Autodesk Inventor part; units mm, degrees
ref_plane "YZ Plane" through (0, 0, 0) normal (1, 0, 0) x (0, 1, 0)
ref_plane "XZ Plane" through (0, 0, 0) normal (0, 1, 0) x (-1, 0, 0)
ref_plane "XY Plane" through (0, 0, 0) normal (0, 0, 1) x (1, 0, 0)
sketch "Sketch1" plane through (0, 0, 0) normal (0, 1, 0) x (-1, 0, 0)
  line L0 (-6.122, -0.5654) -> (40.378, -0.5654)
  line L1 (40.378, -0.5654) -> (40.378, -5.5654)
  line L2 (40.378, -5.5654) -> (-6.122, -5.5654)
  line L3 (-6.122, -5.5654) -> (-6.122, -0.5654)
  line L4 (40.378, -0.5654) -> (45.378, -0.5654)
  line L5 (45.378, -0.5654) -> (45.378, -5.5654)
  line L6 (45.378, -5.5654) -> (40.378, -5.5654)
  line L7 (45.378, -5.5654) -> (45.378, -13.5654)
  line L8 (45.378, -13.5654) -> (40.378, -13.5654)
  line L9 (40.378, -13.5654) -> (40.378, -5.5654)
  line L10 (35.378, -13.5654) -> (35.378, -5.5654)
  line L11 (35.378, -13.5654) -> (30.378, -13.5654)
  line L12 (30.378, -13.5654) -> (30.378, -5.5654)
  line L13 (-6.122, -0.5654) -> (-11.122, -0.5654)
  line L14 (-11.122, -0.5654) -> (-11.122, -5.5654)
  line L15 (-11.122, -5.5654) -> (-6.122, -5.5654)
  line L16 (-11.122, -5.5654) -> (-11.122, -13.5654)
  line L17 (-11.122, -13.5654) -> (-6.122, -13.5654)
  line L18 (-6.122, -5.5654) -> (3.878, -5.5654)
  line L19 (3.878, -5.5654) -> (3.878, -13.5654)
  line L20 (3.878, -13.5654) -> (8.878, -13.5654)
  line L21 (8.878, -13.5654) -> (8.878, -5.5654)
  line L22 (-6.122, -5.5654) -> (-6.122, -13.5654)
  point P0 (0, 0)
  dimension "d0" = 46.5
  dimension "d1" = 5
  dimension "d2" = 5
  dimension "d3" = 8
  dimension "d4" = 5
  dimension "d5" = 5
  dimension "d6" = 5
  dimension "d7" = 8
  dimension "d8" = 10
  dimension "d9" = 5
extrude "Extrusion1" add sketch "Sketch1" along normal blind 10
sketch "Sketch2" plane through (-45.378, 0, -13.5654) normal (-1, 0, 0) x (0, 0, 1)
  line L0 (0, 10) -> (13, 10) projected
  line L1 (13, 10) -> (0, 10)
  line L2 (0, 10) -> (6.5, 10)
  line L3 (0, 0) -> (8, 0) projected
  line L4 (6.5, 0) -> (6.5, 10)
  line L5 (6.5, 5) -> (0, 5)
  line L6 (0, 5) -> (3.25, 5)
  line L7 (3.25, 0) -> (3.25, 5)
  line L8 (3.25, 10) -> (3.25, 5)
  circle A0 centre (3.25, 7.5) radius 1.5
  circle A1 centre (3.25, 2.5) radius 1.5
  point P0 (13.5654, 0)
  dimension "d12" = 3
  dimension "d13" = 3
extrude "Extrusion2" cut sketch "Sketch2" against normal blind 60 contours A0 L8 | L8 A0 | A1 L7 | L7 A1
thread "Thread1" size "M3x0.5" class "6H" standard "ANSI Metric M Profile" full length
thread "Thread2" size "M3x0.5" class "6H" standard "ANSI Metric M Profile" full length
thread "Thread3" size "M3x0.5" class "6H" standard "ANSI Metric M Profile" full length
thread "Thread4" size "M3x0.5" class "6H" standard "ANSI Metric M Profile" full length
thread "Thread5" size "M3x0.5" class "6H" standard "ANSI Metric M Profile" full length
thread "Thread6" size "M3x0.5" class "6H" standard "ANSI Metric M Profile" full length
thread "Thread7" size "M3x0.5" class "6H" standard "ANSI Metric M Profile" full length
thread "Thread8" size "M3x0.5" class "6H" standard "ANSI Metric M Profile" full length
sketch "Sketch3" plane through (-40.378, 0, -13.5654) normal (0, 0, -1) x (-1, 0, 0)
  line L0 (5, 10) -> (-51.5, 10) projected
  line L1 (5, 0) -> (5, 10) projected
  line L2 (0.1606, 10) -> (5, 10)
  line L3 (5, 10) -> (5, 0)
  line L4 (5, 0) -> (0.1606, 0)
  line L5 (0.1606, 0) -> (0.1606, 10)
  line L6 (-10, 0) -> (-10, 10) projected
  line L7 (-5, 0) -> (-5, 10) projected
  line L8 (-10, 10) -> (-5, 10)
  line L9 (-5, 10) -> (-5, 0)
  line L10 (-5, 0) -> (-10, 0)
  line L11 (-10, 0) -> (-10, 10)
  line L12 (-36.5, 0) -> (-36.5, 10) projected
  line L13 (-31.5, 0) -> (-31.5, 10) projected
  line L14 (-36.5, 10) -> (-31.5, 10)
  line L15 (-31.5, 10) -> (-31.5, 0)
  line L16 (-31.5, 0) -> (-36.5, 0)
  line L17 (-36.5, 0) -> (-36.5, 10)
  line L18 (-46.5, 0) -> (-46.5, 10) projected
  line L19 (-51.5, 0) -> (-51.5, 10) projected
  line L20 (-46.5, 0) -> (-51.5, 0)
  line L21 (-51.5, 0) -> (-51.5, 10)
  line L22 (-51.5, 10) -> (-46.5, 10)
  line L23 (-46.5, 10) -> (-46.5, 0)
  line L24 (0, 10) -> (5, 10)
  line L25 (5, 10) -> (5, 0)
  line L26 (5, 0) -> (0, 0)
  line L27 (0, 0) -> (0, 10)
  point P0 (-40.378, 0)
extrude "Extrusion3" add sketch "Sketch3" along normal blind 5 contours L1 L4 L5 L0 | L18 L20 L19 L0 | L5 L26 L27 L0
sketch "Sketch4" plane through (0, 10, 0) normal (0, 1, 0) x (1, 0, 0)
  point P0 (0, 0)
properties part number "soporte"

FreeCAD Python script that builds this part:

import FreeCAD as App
import Part
import Sketcher

V = App.Vector

doc = App.newDocument("Part")
body = doc.addObject("PartDesign::Body", "Body")

sketch1 = body.newObject("Sketcher::SketchObject", "Sketch")
sketch1.AttachmentSupport = (doc.getObject("XZ_Plane"), [""])
sketch1.MapMode = "FlatFace"
sketch1.addGeometry([
    Part.LineSegment(V(11, -1, 0), V(11, -14, 0)),
    Part.LineSegment(V(11, -14, 0), V(6, -14, 0)),
    Part.LineSegment(V(6, -14, 0), V(6, -6, 0)),
    Part.LineSegment(V(6, -6, 0), V(-4, -6, 0)),
    Part.LineSegment(V(-4, -6, 0), V(-4, -14, 0)),
    Part.LineSegment(V(-4, -14, 0), V(-9, -14, 0)),
    Part.LineSegment(V(-9, -14, 0), V(-9, -6, 0)),
    Part.LineSegment(V(-9, -6, 0), V(-30, -6, 0)),
    Part.LineSegment(V(-30, -6, 0), V(-30, -14, 0)),
    Part.LineSegment(V(-30, -14, 0), V(-35, -14, 0)),
    Part.LineSegment(V(-35, -14, 0), V(-35, -6, 0)),
    Part.LineSegment(V(-35, -6, 0), V(-40, -6, 0)),
    Part.LineSegment(V(-40, -6, 0), V(-40, -14, 0)),
    Part.LineSegment(V(-40, -14, 0), V(-45, -14, 0)),
    Part.LineSegment(V(-45, -14, 0), V(-45, -1, 0)),
    Part.LineSegment(V(-45, -1, 0), V(11, -1, 0)),
], False)
sketch1.addConstraint([
    Sketcher.Constraint("Coincident", 0, 2, 1, 1),
    Sketcher.Constraint("Coincident", 1, 2, 2, 1),
    Sketcher.Constraint("Coincident", 2, 2, 3, 1),
    Sketcher.Constraint("Coincident", 3, 2, 4, 1),
    Sketcher.Constraint("Coincident", 4, 2, 5, 1),
    Sketcher.Constraint("Coincident", 5, 2, 6, 1),
    Sketcher.Constraint("Coincident", 6, 2, 7, 1),
    Sketcher.Constraint("Coincident", 7, 2, 8, 1),
    Sketcher.Constraint("Coincident", 8, 2, 9, 1),
    Sketcher.Constraint("Coincident", 9, 2, 10, 1),
    Sketcher.Constraint("Coincident", 10, 2, 11, 1),
    Sketcher.Constraint("Coincident", 11, 2, 12, 1),
    Sketcher.Constraint("Coincident", 12, 2, 13, 1),
    Sketcher.Constraint("Coincident", 13, 2, 14, 1),
    Sketcher.Constraint("Coincident", 14, 2, 15, 1),
    Sketcher.Constraint("Coincident", 15, 2, 0, 1),
    Sketcher.Constraint("Vertical", 0),
    Sketcher.Constraint("Horizontal", 1),
    Sketcher.Constraint("Vertical", 2),
    Sketcher.Constraint("Horizontal", 3),
    Sketcher.Constraint("Vertical", 4),
    Sketcher.Constraint("Horizontal", 5),
    Sketcher.Constraint("Vertical", 6),
    Sketcher.Constraint("Horizontal", 7),
    Sketcher.Constraint("Vertical", 8),
    Sketcher.Constraint("Horizontal", 9),
    Sketcher.Constraint("Vertical", 10),
    Sketcher.Constraint("Horizontal", 11),
    Sketcher.Constraint("Vertical", 12),
    Sketcher.Constraint("Horizontal", 13),
    Sketcher.Constraint("Vertical", 14),
    Sketcher.Constraint("Horizontal", 15),
    Sketcher.Constraint("Horizontal", 1, 2, 4, 2),
    Sketcher.Constraint("Horizontal", 3, 2, 6, 2),
    Sketcher.Constraint("Horizontal", 5, 2, 8, 2),
    Sketcher.Constraint("Horizontal", 7, 2, 10, 2),
    Sketcher.Constraint("Horizontal", 9, 2, 12, 2),
    Sketcher.Constraint("Equal", 1, 5),
    Sketcher.Constraint("Equal", 5, 9),
    Sketcher.Constraint("Equal", 9, 11),
    Sketcher.Constraint("Equal", 11, 13),
    Sketcher.Constraint("DistanceX", 1, 2, 1, 1, 5.0),
    Sketcher.Constraint("DistanceX", 3, 2, 3, 1, 10.0),
    Sketcher.Constraint("DistanceY", 2, 1, 2, 2, 8.0),
    Sketcher.Constraint("DistanceY", 11, 2, 14, 2, 5.0),
    Sketcher.Constraint("DistanceX", 7, 2, 7, 1, 21.5),
    Sketcher.Constraint("DistanceX", -1, 1, 0, 2, 11.122),
    Sketcher.Constraint("DistanceY", 0, 2, -1, 1, 13.5654),
])
pad1 = body.newObject("PartDesign::Pad", "Pad")
pad1.Profile = sketch1
pad1.Length = 10
pad1.Reversed = True

sketch2 = body.newObject("Sketcher::SketchObject", "Sketch001")
sketch2.AttachmentSupport = (doc.getObject("YZ_Plane"), [""])
sketch2.MapMode = "FlatFace"
sketch2.AttachmentOffset = App.Placement(V(0, 0, -45.378), App.Rotation())
sketch2.addGeometry([
    Part.Circle(V(7.5, -10.3, 0), V(0, 0, 1), 1.5),
    Part.Circle(V(2.5, -10.3, 0), V(0, 0, 1), 1.5),
], False)
sketch2.addConstraint([
    Sketcher.Constraint("Equal", 0, 1),
    Sketcher.Constraint("Horizontal", 0, 3, 1, 3),
    Sketcher.Constraint("Diameter", 0, 3.0),
    Sketcher.Constraint("DistanceX", 1, 3, 0, 3, 5.0),
    Sketcher.Constraint("DistanceX", -1, 1, 0, 3, 7.5),
    Sketcher.Constraint("DistanceY", 0, 3, -1, 1, 10.3154),
])
pocket1 = body.newObject("PartDesign::Pocket", "Pocket")
pocket1.Profile = sketch2
pocket1.Length = 60
pocket1.Reversed = True

sketch3 = body.newObject("Sketcher::SketchObject", "Sketch002")
sketch3.AttachmentSupport = (doc.getObject("XY_Plane"), [""])
sketch3.MapMode = "FlatFace"
sketch3.AttachmentOffset = App.Placement(V(0, 0, -13.5654), App.Rotation())
sketch3.addGeometry([
    Part.LineSegment(V(-45, 0, 0), V(-45, 10, 0)),
    Part.LineSegment(V(-45, 10, 0), V(-40, 10, 0)),
    Part.LineSegment(V(-40, 10, 0), V(-40, 0, 0)),
    Part.LineSegment(V(-40, 0, 0), V(-45, 0, 0)),
    Part.LineSegment(V(6, 0, 0), V(6, 10, 0)),
    Part.LineSegment(V(6, 10, 0), V(11, 10, 0)),
    Part.LineSegment(V(11, 10, 0), V(11, 0, 0)),
    Part.LineSegment(V(11, 0, 0), V(6, 0, 0)),
], False)
sketch3.addConstraint([
    Sketcher.Constraint("Coincident", 0, 2, 1, 1),
    Sketcher.Constraint("Coincident", 1, 2, 2, 1),
    Sketcher.Constraint("Coincident", 2, 2, 3, 1),
    Sketcher.Constraint("Coincident", 3, 2, 0, 1),
    Sketcher.Constraint("Coincident", 4, 2, 5, 1),
    Sketcher.Constraint("Coincident", 5, 2, 6, 1),
    Sketcher.Constraint("Coincident", 6, 2, 7, 1),
    Sketcher.Constraint("Coincident", 7, 2, 4, 1),
    Sketcher.Constraint("Vertical", 0),
    Sketcher.Constraint("Horizontal", 1),
    Sketcher.Constraint("Vertical", 2),
    Sketcher.Constraint("Horizontal", 3),
    Sketcher.Constraint("Vertical", 4),
    Sketcher.Constraint("Horizontal", 5),
    Sketcher.Constraint("Vertical", 6),
    Sketcher.Constraint("Horizontal", 7),
    Sketcher.Constraint("PointOnObject", 2, 2, -1),
    Sketcher.Constraint("PointOnObject", 6, 2, -1),
    Sketcher.Constraint("Horizontal", 1, 2, 4, 2),
    Sketcher.Constraint("Equal", 3, 5),
    Sketcher.Constraint("DistanceX", 1, 1, 1, 2, 5.0),
    Sketcher.Constraint("DistanceY", 0, 1, 0, 2, 10.0),
    Sketcher.Constraint("DistanceX", 1, 2, 4, 2, 46.5),
    Sketcher.Constraint("DistanceX", 0, 2, -1, 1, 45.378),
])
pad2 = body.newObject("PartDesign::Pad", "Pad001")
pad2.Profile = sketch3
pad2.Length = 5
pad2.Reversed = True

doc.recompute()
